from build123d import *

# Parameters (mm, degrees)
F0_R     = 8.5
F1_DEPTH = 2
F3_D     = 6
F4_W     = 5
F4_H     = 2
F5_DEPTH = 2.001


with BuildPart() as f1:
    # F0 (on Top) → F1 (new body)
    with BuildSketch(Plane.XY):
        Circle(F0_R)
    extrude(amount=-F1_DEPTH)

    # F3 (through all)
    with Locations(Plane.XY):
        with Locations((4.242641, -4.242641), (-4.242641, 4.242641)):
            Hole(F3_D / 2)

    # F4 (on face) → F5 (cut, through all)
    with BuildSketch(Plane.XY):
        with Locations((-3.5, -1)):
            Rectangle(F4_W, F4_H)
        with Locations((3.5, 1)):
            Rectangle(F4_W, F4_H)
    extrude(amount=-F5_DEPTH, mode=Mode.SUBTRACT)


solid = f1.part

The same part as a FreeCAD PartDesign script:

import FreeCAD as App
import Part
import Sketcher


def add_polygon(sketch, points):
    """Adds a closed chain of lines whose ends are joined by coincident constraints."""
    first, n = sketch.GeometryCount, len(points)
    for a, b in zip(points, points[1:] + points[:1]):
        sketch.addGeometry(Part.LineSegment(App.Vector(*a, 0), App.Vector(*b, 0)), False)
    for i in range(n):
        sketch.addConstraint(Sketcher.Constraint("Coincident", first + i, 2, first + (i + 1) % n, 1))

doc = App.newDocument("Part")
body = doc.addObject("PartDesign::Body", "Body")

# Sketch on XY plane
sketch1 = body.newObject("Sketcher::SketchObject", "Sketch")
sketch1.AttachmentSupport = (doc.getObject("XY_Plane"), [""])
sketch1.MapMode = "FlatFace"
sketch1.addGeometry(Part.Circle(App.Vector(0, 0, 0), App.Vector(0, 0, 1), 8), False)
sketch1.addConstraint([
    Sketcher.Constraint("Coincident", 0, 3, -1, 1),
    Sketcher.Constraint("Diameter", 0, 17.0),
])
pad1 = body.newObject("PartDesign::Pad", "Pad")
pad1.Profile = sketch1
pad1.Length = 2
pad1.Reversed = True

# Sketch on XY plane
sketch2 = body.newObject("Sketcher::SketchObject", "Sketch001")
sketch2.AttachmentSupport = (doc.getObject("XY_Plane"), [""])
sketch2.MapMode = "FlatFace"
sketch2.addGeometry([
    Part.Circle(App.Vector(4.2, -4.2, 0), App.Vector(0, 0, 1), 3),
    Part.Circle(App.Vector(-4.2, 4.2, 0), App.Vector(0, 0, 1), 3),
], False)
sketch2.addConstraint([
    Sketcher.Constraint("Equal", 0, 1),
    Sketcher.Constraint("Symmetric", 0, 3, 1, 3, -1, 1),
    Sketcher.Constraint("Diameter", 0, 6.0),
    Sketcher.Constraint("DistanceX", -1, 1, 0, 3, 4.242641),
    Sketcher.Constraint("DistanceY", 0, 3, -1, 1, 4.242641),
])
doc.recompute()
hole = body.newObject("PartDesign::Hole", "Hole")
hole.Profile = sketch2
hole.ThreadType = "None"
hole.Diameter = 6
hole.DepthType = "ThroughAll"

# Sketch on XY plane
sketch3 = body.newObject("Sketcher::SketchObject", "Sketch002")
sketch3.AttachmentSupport = (doc.getObject("XY_Plane"), [""])
sketch3.MapMode = "FlatFace"
add_polygon(sketch3, [(-6, 0), (-6, -2), (-1, -2), (-1, 0)])  # lines 0-3
add_polygon(sketch3, [(1, 2), (1, 0), (6, 0), (6, 2)])  # lines 4-7
sketch3.addConstraint([
    Sketcher.Constraint("Vertical", 0),
    Sketcher.Constraint("Horizontal", 1),
    Sketcher.Constraint("Vertical", 2),
    Sketcher.Constraint("Horizontal", 3),
    Sketcher.Constraint("Vertical", 4),
    Sketcher.Constraint("Horizontal", 5),
    Sketcher.Constraint("Vertical", 6),
    Sketcher.Constraint("Horizontal", 7),
    Sketcher.Constraint("Symmetric", 2, 2, 4, 2, -1, 1),
    Sketcher.Constraint("Symmetric", 0, 2, 6, 2, -1, 1),
    Sketcher.Constraint("PointOnObject", 2, 2, -1),
    Sketcher.Constraint("DistanceX", 1, 1, 1, 2, 5.0),
    Sketcher.Constraint("DistanceY", 0, 2, 0, 1, 2.0),
    Sketcher.Constraint("DistanceX", 0, 2, -1, 1, 6.0),
])
pocket1 = body.newObject("PartDesign::Pocket", "Pocket")
pocket1.Profile = sketch3
pocket1.Type = "ThroughAll"

doc.recompute()
